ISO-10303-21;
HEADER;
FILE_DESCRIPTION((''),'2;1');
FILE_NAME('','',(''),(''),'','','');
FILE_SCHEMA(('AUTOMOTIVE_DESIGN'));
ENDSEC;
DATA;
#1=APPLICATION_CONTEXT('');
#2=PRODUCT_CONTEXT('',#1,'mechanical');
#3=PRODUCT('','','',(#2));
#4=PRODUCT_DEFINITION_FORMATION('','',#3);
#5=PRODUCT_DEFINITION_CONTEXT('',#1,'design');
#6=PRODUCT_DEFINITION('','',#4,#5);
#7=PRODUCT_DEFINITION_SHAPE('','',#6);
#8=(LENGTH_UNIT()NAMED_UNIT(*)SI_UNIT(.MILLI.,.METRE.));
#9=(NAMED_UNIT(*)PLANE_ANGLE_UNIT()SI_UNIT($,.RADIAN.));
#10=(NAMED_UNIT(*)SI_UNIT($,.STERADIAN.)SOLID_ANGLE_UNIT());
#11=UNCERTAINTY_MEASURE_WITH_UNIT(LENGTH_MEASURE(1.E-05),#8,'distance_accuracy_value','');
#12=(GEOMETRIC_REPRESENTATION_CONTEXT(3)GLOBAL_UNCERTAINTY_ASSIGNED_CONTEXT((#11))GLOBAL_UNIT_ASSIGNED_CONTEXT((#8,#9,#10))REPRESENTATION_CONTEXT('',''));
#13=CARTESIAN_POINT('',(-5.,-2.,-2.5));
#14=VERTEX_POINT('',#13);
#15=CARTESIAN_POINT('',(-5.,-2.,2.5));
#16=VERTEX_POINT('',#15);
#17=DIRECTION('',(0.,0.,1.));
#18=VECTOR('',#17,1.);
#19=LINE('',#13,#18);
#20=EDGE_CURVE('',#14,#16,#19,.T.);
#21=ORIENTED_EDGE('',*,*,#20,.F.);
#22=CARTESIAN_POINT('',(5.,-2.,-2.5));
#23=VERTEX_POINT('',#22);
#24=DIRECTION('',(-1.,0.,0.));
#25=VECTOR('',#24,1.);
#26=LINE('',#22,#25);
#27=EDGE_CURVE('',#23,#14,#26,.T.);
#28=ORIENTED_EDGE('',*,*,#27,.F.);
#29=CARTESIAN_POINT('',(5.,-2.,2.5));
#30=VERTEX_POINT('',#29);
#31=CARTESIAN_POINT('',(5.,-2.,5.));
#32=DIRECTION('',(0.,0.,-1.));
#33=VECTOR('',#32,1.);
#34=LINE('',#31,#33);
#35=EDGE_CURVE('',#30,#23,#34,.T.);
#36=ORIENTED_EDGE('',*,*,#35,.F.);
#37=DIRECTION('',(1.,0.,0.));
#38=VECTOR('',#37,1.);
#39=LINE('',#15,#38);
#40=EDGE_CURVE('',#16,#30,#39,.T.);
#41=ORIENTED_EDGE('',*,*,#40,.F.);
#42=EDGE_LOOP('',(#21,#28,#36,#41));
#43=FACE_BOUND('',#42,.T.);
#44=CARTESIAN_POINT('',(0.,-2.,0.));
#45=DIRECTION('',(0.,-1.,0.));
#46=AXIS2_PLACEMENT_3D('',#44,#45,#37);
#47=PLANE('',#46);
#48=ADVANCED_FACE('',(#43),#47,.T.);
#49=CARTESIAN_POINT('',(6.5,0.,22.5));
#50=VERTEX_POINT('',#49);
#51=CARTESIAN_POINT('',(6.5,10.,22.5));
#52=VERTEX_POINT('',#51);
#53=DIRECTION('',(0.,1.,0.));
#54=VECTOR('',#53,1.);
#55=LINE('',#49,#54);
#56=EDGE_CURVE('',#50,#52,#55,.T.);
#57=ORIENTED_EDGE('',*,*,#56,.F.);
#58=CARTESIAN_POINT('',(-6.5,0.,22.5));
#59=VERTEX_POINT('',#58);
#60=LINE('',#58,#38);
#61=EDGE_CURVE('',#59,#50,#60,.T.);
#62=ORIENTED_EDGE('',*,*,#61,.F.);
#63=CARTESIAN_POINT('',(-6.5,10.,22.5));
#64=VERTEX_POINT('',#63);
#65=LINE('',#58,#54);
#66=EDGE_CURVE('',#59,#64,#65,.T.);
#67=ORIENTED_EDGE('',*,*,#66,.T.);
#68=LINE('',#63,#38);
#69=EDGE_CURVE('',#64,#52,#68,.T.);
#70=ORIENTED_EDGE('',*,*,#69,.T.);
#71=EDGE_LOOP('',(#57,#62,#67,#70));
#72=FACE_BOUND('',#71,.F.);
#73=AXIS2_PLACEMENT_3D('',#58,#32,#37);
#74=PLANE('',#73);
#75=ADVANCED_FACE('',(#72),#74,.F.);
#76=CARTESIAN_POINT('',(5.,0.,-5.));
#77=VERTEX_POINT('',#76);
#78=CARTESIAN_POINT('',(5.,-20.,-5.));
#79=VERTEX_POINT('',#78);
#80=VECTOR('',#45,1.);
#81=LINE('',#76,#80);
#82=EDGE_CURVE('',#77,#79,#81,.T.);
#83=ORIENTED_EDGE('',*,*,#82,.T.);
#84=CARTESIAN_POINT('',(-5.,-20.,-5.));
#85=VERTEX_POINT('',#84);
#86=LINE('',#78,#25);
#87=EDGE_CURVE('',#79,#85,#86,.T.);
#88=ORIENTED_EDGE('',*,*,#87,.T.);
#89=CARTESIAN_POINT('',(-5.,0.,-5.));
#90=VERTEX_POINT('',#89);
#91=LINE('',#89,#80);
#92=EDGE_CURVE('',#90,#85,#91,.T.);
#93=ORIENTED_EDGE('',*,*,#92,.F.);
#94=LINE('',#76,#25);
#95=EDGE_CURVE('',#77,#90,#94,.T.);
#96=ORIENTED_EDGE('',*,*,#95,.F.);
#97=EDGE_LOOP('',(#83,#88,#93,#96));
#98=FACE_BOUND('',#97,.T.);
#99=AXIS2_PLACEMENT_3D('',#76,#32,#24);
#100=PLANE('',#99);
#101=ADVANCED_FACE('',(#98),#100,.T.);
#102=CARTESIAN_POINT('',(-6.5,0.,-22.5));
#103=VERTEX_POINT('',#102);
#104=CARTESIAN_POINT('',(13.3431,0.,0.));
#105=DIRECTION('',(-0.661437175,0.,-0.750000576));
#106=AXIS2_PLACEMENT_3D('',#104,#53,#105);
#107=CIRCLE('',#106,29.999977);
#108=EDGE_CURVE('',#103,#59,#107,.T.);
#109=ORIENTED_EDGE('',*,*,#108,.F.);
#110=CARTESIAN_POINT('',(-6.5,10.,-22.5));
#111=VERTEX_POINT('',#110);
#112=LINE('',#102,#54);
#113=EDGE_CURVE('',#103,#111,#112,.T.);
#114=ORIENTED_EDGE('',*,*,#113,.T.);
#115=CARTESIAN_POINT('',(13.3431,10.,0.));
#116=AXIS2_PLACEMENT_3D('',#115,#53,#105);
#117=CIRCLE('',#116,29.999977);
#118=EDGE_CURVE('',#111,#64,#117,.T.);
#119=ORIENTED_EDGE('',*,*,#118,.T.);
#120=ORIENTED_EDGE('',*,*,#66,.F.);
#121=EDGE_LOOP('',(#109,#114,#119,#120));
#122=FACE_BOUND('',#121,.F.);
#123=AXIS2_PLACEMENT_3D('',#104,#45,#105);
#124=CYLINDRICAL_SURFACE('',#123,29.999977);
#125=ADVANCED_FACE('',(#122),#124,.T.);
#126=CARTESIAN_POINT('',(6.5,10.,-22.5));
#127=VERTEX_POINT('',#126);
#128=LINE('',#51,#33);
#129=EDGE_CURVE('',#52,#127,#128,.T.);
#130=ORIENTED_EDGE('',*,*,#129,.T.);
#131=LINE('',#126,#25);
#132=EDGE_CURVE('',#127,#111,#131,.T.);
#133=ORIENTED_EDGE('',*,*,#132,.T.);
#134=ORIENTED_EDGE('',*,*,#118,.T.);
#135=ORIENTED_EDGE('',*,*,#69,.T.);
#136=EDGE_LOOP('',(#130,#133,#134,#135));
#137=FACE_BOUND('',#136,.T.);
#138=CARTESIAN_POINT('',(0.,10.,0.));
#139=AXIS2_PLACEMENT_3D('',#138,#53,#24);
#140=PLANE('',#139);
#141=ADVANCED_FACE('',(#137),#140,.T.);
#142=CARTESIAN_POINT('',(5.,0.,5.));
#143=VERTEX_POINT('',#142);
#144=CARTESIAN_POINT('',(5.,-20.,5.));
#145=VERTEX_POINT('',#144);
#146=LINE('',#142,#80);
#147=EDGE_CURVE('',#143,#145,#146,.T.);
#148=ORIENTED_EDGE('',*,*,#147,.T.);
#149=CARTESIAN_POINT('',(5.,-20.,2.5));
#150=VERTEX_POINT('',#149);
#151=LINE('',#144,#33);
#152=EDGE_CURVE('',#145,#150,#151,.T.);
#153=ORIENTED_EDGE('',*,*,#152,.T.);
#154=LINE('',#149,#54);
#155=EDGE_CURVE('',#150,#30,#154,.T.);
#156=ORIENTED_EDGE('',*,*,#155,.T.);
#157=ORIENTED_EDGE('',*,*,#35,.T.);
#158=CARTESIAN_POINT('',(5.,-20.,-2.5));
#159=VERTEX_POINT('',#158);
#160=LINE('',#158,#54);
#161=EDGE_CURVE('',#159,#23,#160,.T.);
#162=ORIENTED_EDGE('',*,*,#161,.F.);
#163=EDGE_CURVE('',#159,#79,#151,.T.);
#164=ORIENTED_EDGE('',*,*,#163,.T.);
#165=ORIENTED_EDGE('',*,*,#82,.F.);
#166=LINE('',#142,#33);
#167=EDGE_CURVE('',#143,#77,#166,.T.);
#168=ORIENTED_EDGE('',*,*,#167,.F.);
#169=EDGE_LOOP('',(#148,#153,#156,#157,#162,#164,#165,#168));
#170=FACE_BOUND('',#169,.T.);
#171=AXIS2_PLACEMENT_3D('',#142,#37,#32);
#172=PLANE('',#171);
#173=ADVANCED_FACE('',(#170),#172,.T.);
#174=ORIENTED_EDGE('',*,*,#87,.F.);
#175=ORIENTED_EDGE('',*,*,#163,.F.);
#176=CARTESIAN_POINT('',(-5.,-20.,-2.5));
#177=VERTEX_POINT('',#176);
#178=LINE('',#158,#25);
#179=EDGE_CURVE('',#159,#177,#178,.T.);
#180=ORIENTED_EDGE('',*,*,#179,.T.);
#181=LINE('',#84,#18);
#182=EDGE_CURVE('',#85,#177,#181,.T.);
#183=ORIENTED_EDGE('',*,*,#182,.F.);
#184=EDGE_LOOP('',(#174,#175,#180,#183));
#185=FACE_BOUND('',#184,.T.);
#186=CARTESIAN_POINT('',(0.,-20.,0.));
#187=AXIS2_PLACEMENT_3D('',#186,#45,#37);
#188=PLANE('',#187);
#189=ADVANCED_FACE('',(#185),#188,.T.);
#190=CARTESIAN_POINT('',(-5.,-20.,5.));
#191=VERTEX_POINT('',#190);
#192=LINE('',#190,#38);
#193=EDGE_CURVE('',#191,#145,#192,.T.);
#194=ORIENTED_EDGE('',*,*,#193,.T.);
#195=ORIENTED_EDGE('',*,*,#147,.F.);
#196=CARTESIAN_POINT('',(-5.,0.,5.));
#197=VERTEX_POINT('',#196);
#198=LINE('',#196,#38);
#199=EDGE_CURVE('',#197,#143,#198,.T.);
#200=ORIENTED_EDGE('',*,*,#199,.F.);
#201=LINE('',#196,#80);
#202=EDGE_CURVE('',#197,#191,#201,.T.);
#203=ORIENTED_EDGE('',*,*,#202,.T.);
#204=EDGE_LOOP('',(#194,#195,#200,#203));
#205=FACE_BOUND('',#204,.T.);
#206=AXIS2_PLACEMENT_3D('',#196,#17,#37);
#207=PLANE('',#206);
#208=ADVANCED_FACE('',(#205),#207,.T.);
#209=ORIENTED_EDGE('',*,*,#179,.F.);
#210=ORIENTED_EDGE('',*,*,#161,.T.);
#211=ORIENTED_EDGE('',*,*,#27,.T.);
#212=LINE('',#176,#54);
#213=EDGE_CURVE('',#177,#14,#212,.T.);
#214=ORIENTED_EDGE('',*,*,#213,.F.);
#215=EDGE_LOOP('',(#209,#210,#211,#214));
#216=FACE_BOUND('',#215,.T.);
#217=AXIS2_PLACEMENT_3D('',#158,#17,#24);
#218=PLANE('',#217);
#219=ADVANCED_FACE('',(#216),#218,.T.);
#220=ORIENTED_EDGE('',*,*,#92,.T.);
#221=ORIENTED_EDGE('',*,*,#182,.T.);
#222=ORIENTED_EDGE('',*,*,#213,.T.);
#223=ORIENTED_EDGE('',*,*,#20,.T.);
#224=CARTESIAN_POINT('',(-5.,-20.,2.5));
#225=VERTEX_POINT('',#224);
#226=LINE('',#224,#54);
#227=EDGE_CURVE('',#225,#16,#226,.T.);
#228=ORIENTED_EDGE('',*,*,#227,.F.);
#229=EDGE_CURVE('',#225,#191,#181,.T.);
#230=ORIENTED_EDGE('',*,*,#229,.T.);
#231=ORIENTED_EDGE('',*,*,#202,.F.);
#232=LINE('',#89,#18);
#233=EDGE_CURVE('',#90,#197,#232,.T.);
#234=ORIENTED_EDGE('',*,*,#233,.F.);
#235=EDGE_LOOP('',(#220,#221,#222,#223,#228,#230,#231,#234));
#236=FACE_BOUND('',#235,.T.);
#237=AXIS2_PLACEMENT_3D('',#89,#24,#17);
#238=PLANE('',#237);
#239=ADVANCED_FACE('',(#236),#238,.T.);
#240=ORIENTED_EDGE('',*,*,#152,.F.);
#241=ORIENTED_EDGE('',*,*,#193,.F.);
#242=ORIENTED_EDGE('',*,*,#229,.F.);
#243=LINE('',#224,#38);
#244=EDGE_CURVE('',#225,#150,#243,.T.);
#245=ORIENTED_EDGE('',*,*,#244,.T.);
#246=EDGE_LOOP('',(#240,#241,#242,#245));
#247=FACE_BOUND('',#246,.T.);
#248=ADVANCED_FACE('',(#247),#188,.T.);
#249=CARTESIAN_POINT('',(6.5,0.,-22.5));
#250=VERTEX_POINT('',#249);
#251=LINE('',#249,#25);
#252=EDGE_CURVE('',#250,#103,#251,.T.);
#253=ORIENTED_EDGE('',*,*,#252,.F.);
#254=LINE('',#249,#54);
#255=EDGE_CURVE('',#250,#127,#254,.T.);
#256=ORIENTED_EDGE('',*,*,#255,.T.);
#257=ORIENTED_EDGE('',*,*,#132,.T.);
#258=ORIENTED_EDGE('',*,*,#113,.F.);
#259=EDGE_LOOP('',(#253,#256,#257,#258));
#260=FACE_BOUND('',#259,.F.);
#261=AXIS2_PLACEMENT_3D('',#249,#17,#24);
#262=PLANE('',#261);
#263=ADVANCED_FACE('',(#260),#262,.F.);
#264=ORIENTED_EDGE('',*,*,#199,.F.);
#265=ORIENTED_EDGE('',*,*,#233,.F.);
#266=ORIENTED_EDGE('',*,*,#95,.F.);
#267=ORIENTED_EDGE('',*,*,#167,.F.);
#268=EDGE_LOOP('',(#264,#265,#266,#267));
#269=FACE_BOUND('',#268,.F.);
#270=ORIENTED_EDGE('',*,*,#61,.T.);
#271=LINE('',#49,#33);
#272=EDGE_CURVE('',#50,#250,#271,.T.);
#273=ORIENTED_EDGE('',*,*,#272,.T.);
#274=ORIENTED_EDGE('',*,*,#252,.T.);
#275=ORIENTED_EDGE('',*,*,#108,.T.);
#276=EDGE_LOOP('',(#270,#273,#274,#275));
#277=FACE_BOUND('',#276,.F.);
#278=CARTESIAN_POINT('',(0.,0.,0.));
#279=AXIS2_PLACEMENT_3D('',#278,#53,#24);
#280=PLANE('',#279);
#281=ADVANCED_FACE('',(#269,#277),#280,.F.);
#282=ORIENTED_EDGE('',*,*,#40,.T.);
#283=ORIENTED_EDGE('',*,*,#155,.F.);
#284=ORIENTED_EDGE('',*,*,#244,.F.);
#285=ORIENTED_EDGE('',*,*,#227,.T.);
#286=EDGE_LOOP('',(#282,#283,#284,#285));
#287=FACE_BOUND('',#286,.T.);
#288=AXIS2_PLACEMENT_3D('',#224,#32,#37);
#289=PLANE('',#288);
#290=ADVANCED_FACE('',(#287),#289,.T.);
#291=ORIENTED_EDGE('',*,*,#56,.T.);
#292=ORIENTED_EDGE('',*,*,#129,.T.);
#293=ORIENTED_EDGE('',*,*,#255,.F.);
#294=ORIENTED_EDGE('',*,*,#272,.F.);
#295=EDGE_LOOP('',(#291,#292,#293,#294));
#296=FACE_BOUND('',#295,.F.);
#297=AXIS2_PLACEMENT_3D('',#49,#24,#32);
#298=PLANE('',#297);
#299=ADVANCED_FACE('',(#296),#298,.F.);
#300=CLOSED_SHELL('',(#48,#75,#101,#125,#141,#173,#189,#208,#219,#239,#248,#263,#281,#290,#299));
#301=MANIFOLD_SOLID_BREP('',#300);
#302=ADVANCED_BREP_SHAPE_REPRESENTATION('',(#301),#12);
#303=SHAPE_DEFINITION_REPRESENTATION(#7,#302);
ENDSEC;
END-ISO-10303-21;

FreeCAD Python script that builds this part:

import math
import FreeCAD as App
import Part
import Sketcher
from FreeCAD import Vector
Q = App.Units.Quantity

doc = App.newDocument("Part")
body = doc.addObject("PartDesign::Body", "Body")

# Sketch on XZ plane
sketch1 = body.newObject("Sketcher::SketchObject", "Sketch")
sketch1.AttachmentSupport = (doc.getObject("XZ_Plane"), [""])
sketch1.MapMode = "FlatFace"
sketch1.addGeometry([
    Part.ArcOfCircle(Part.Circle(Vector(13, 0, 0), Vector(0, 0, 1), 30), math.radians(131), math.radians(229)),
    Part.LineSegment(Vector(-6, 22, 0), Vector(6, 22, 0)),
    Part.LineSegment(Vector(6, 22, 0), Vector(6, -22, 0)),
    Part.LineSegment(Vector(6, -22, 0), Vector(-6, -22, 0)),
], False)
sketch1.addConstraint([
    Sketcher.Constraint("Coincident", 0, 1, 1, 1),
    Sketcher.Constraint("Coincident", 1, 2, 2, 1),
    Sketcher.Constraint("Coincident", 2, 2, 3, 1),
    Sketcher.Constraint("Coincident", 3, 2, 0, 2),
    Sketcher.Constraint("Horizontal", 1),
    Sketcher.Constraint("Vertical", 2),
    Sketcher.Constraint("Horizontal", 3),
    Sketcher.Constraint("Symmetric", 0, 1, 2, 2, -1, 1),
    Sketcher.Constraint("PointOnObject", 0, 3, -1),
    Sketcher.Constraint("Radius", 0, Q("30 mm")),
    Sketcher.Constraint("DistanceX", 1, 1, 1, 2, Q("13 mm")),
    Sketcher.Constraint("DistanceY", 2, 2, 2, 1, Q("45 mm")),
])
pad1 = body.newObject("PartDesign::Pad", "Pad")
pad1.Profile = sketch1
pad1.Length = 10
pad1.Reversed = True

# Sketch on XZ plane
sketch2 = body.newObject("Sketcher::SketchObject", "Sketch001")
sketch2.AttachmentSupport = (doc.getObject("XZ_Plane"), [""])
sketch2.MapMode = "FlatFace"
sketch2.addGeometry([
    Part.LineSegment(Vector(5, 5, 0), Vector(-5, 5, 0)),
    Part.LineSegment(Vector(-5, 5, 0), Vector(-5, -5, 0)),
    Part.LineSegment(Vector(-5, -5, 0), Vector(5, -5, 0)),
    Part.LineSegment(Vector(5, -5, 0), Vector(5, 5, 0)),
], False)
sketch2.addConstraint([
    Sketcher.Constraint("Coincident", 0, 2, 1, 1),
    Sketcher.Constraint("Coincident", 1, 2, 2, 1),
    Sketcher.Constraint("Coincident", 2, 2, 3, 1),
    Sketcher.Constraint("Coincident", 3, 2, 0, 1),
    Sketcher.Constraint("Horizontal", 0),
    Sketcher.Constraint("Vertical", 1),
    Sketcher.Constraint("Horizontal", 2),
    Sketcher.Constraint("Vertical", 3),
    Sketcher.Constraint("Symmetric", 0, 2, 2, 2, -1, 1),
    Sketcher.Constraint("Equal", 2, 1),
    Sketcher.Constraint("DistanceX", 0, 2, 0, 1, Q("10 mm")),
])
pad2 = body.newObject("PartDesign::Pad", "Pad001")
pad2.Profile = sketch2
pad2.Length = 20

# Sketch on XZ plane
sketch3 = body.newObject("Sketcher::SketchObject", "Sketch002")
sketch3.AttachmentSupport = (doc.getObject("XZ_Plane"), [""])
sketch3.MapMode = "FlatFace"
sketch3.AttachmentOffset = App.Placement(Vector(0, 0, 20), App.Rotation())
sketch3.addGeometry([
    Part.LineSegment(Vector(5, -2, 0), Vector(5, 2, 0)),
    Part.LineSegment(Vector(5, 2, 0), Vector(-5, 2, 0)),
    Part.LineSegment(Vector(-5, 2, 0), Vector(-5, -2, 0)),
    Part.LineSegment(Vector(-5, -2, 0), Vector(5, -2, 0)),
], False)
sketch3.addConstraint([
    Sketcher.Constraint("Coincident", 0, 2, 1, 1),
    Sketcher.Constraint("Coincident", 1, 2, 2, 1),
    Sketcher.Constraint("Coincident", 2, 2, 3, 1),
    Sketcher.Constraint("Coincident", 3, 2, 0, 1),
    Sketcher.Constraint("Vertical", 0),
    Sketcher.Constraint("Horizontal", 1),
    Sketcher.Constraint("Vertical", 2),
    Sketcher.Constraint("Horizontal", 3),
    Sketcher.Constraint("Symmetric", 0, 2, 2, 2, -1, 1),
    Sketcher.Constraint("DistanceX", 1, 2, 1, 1, Q("10 mm")),
    Sketcher.Constraint("DistanceY", 0, 1, 0, 2, Q("5 mm")),
])
pocket1 = body.newObject("PartDesign::Pocket", "Pocket")
pocket1.Profile = sketch3
pocket1.Length = 18

doc.recompute()
